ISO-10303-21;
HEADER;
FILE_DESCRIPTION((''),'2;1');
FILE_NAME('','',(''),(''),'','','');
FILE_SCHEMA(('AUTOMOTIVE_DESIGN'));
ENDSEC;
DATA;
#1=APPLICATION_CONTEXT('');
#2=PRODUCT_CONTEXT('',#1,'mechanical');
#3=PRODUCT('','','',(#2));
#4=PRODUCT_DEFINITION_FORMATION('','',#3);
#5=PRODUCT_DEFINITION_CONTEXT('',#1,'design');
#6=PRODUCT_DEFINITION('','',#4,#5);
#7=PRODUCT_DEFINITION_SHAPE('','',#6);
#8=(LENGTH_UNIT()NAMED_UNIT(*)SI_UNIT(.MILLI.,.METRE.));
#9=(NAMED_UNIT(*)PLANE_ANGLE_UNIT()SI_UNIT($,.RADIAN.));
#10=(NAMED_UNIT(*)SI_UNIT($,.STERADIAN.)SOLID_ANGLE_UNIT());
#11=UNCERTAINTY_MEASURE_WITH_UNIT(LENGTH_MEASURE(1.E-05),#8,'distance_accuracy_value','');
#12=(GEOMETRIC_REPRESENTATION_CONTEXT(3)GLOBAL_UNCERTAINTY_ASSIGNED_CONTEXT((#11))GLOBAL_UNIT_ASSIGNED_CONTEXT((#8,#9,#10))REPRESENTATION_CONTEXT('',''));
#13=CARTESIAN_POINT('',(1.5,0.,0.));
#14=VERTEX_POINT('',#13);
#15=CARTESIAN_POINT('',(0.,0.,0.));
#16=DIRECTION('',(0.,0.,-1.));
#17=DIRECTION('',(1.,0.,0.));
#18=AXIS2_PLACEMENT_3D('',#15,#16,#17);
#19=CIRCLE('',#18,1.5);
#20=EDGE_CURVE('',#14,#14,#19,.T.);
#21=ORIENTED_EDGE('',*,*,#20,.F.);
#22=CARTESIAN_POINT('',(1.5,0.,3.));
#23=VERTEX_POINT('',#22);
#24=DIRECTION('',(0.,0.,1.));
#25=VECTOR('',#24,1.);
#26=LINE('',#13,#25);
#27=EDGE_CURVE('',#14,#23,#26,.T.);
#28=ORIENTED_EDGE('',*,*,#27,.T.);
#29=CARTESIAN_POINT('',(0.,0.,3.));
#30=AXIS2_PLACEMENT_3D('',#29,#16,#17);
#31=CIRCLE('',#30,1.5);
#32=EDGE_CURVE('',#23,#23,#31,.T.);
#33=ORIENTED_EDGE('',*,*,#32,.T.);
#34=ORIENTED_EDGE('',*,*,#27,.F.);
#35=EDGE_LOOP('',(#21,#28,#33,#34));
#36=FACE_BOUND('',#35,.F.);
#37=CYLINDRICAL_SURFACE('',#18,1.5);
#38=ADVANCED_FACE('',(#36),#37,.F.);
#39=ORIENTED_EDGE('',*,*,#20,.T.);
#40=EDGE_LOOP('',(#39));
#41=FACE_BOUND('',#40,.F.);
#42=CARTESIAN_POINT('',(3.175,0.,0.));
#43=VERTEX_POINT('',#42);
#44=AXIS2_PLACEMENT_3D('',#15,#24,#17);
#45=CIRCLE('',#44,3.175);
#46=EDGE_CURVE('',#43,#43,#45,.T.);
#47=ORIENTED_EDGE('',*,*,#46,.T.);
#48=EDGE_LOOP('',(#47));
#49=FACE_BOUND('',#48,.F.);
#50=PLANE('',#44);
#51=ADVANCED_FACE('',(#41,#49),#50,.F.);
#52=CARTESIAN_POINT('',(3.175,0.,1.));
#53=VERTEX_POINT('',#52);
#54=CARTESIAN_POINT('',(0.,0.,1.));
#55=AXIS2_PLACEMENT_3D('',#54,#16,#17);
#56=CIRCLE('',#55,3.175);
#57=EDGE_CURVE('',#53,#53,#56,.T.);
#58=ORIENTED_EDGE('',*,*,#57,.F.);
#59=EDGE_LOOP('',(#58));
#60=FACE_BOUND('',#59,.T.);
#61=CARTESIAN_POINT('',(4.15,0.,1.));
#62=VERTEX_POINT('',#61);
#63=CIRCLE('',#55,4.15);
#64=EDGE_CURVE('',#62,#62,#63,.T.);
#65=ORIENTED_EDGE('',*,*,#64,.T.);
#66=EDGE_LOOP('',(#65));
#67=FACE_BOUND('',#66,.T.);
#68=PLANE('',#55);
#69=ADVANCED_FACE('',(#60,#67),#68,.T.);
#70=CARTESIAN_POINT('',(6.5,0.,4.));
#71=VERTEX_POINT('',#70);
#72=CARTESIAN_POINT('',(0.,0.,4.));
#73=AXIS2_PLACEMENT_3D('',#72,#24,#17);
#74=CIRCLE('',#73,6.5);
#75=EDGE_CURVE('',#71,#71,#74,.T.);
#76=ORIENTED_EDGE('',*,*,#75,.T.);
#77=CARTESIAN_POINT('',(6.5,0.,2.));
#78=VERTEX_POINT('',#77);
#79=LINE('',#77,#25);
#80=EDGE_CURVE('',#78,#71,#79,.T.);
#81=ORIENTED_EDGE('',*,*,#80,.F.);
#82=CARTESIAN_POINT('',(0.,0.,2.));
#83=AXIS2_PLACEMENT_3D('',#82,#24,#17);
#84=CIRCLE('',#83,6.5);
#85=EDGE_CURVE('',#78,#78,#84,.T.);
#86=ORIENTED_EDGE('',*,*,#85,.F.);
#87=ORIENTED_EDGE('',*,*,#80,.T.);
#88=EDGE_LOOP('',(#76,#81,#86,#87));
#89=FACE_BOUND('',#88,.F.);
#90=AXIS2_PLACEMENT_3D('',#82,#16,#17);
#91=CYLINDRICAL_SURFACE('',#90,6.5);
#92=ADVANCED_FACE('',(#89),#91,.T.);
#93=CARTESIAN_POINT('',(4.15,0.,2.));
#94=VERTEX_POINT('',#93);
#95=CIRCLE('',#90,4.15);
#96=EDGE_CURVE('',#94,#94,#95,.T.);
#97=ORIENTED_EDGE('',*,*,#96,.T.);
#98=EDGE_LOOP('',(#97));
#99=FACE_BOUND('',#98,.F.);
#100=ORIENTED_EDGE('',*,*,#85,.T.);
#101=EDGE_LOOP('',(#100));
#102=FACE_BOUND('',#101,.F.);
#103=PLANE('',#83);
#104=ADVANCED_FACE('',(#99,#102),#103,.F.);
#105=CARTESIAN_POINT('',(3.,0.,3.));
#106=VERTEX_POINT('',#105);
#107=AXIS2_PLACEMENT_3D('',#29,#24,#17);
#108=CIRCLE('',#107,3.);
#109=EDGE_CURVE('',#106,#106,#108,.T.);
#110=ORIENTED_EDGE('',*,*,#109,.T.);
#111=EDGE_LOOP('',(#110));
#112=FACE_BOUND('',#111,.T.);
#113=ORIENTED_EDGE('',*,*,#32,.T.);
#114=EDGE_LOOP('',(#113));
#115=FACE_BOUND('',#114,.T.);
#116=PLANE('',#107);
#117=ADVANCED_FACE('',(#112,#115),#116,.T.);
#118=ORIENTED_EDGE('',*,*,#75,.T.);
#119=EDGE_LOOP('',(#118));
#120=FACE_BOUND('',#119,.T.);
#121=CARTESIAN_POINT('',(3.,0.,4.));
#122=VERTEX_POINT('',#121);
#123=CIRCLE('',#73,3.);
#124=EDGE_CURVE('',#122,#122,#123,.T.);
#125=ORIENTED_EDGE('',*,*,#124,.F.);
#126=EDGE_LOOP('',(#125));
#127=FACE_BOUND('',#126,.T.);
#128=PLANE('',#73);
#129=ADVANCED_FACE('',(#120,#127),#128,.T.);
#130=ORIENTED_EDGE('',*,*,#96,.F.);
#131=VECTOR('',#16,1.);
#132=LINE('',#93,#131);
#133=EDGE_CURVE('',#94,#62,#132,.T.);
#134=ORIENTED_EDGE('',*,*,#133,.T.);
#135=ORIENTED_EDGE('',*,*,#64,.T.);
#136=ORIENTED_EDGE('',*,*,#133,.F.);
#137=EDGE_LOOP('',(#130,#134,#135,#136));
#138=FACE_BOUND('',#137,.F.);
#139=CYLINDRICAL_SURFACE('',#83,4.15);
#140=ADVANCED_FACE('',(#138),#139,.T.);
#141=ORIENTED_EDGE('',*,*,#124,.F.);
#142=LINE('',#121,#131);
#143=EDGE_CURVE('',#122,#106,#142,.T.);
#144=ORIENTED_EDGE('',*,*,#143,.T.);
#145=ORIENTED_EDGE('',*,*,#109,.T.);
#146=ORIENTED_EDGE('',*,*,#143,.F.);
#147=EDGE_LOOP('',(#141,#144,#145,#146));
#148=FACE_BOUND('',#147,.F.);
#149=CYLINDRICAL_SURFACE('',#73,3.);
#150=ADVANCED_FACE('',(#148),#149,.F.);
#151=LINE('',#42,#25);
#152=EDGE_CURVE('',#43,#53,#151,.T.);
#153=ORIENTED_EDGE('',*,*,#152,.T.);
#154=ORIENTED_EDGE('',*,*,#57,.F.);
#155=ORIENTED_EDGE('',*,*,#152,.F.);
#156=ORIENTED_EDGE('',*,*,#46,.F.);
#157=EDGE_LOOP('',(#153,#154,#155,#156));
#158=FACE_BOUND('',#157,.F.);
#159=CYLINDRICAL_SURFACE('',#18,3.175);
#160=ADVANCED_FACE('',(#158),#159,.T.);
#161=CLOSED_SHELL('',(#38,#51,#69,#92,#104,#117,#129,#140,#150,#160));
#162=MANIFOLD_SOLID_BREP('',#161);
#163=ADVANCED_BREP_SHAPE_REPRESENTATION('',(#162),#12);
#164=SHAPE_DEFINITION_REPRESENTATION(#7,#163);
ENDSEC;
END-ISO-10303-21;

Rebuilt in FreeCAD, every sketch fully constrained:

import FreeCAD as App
import Part
import Sketcher
Q = App.Units.Quantity

doc = App.newDocument("Part")
body = doc.addObject("PartDesign::Body", "Body")

# Sketch on XY plane
sketch1 = body.newObject("Sketcher::SketchObject", "Sketch")
sketch1.AttachmentSupport = (doc.getObject("XY_Plane"), [""])
sketch1.MapMode = "FlatFace"
sketch1.addGeometry(Part.Circle(App.Vector(0, 0, 0), App.Vector(0, 0, 1), 3.2), False)
sketch1.addConstraint(Sketcher.Constraint("Coincident", 0, 3, -1, 1))
sketch1.addConstraint(Sketcher.Constraint("Diameter", 0, Q("6.35 mm")))
pad1 = body.newObject("PartDesign::Pad", "Pad")
pad1.Profile = sketch1
pad1.Length = 2

# Sketch on XY plane
sketch2 = body.newObject("Sketcher::SketchObject", "Sketch001")
sketch2.AttachmentSupport = (doc.getObject("XY_Plane"), [""])
sketch2.MapMode = "FlatFace"
sketch2.AttachmentOffset = App.Placement(App.Vector(0, 0, 2), App.Rotation())
sketch2.addGeometry(Part.Circle(App.Vector(0, 0, 0), App.Vector(0, 0, 1), 6), False)
sketch2.addConstraint(Sketcher.Constraint("Coincident", 0, 3, -1, 1))
sketch2.addConstraint(Sketcher.Constraint("Diameter", 0, Q("13 mm")))
pad2 = body.newObject("PartDesign::Pad", "Pad001")
pad2.Profile = sketch2
pad2.Length = 2

# Sketch on XY plane
sketch3 = body.newObject("Sketcher::SketchObject", "Sketch002")
sketch3.AttachmentSupport = (doc.getObject("XY_Plane"), [""])
sketch3.MapMode = "FlatFace"
sketch3.AttachmentOffset = App.Placement(App.Vector(0, 0, 4), App.Rotation())
sketch3.addGeometry(Part.Circle(App.Vector(0, 0, 0), App.Vector(0, 0, 1), 3), False)
sketch3.addConstraint(Sketcher.Constraint("Coincident", 0, 3, -1, 1))
sketch3.addConstraint(Sketcher.Constraint("Diameter", 0, Q("6 mm")))
pocket1 = body.newObject("PartDesign::Pocket", "Pocket")
pocket1.Profile = sketch3
pocket1.Length = 1

# Sketch on XY plane
sketch4 = body.newObject("Sketcher::SketchObject", "Sketch003")
sketch4.AttachmentSupport = (doc.getObject("XY_Plane"), [""])
sketch4.MapMode = "FlatFace"
sketch4.addGeometry(Part.Circle(App.Vector(0, 0, 0), App.Vector(0, 0, 1), 1.5), False)
sketch4.addConstraint(Sketcher.Constraint("Coincident", 0, 3, -1, 1))
sketch4.addConstraint(Sketcher.Constraint("Diameter", 0, Q("3 mm")))
pocket2 = body.newObject("PartDesign::Pocket", "Pocket001")
pocket2.Profile = sketch4
pocket2.Length = 25
pocket2.Reversed = True

# Sketch on XY plane
sketch5 = body.newObject("Sketcher::SketchObject", "Sketch004")
sketch5.AttachmentSupport = (doc.getObject("XY_Plane"), [""])
sketch5.MapMode = "FlatFace"
sketch5.AttachmentOffset = App.Placement(App.Vector(0, 0, 2), App.Rotation())
sketch5.addGeometry(Part.Circle(App.Vector(0, 0, 0), App.Vector(0, 0, 1), 4.2), False)
sketch5.addGeometry(Part.Circle(App.Vector(0, 0, 0), App.Vector(0, 0, 1), 3.2), False)
sketch5.addConstraint(Sketcher.Constraint("Coincident", 0, 3, -1, 1))
sketch5.addConstraint(Sketcher.Constraint("Coincident", 1, 3, -1, 1))
sketch5.addConstraint(Sketcher.Constraint("Diameter", 0, Q("8.3 mm")))
sketch5.addConstraint(Sketcher.Constraint("Diameter", 1, Q("6.35 mm")))
pad3 = body.newObject("PartDesign::Pad", "Pad002")
pad3.Profile = sketch5
pad3.Length = 1
pad3.Reversed = True

doc.recompute()
